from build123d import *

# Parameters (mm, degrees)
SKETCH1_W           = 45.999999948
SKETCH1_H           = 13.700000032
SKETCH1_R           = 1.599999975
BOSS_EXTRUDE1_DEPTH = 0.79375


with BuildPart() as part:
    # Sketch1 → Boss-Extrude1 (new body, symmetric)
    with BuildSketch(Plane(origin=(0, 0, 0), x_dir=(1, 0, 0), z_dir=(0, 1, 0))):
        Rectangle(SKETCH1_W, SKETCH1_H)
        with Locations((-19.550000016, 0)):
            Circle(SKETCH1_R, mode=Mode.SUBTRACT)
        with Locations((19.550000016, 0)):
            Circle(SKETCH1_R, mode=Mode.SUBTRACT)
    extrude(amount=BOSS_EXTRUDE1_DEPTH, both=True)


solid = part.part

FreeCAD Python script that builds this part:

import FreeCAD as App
import Part
import Sketcher

V = App.Vector
Q = App.Units.Quantity

doc = App.newDocument("Part")
body = doc.addObject("PartDesign::Body", "Body")

sketch1 = body.newObject("Sketcher::SketchObject", "Sketch")
sketch1.AttachmentSupport = (doc.getObject("XZ_Plane"), [""])
sketch1.MapMode = "FlatFace"
sketch1.addGeometry(Part.LineSegment(V(-23, -6.9, 0), V(-23, 6.9, 0)), False)
sketch1.addGeometry(Part.LineSegment(V(-23, 6.9, 0), V(23, 6.9, 0)), False)
sketch1.addGeometry(Part.LineSegment(V(23, 6.9, 0), V(23, -6.9, 0)), False)
sketch1.addGeometry(Part.LineSegment(V(23, -6.9, 0), V(-23, -6.9, 0)), False)
sketch1.addGeometry(Part.Circle(V(-19.6, 0, 0), V(0, 0, 1), 1.6), False)
sketch1.addGeometry(Part.Circle(V(19.6, 0, 0), V(0, 0, 1), 1.6), False)
sketch1.addConstraint(Sketcher.Constraint("Coincident", 0, 2, 1, 1))
sketch1.addConstraint(Sketcher.Constraint("Coincident", 1, 2, 2, 1))
sketch1.addConstraint(Sketcher.Constraint("Coincident", 2, 2, 3, 1))
sketch1.addConstraint(Sketcher.Constraint("Coincident", 3, 2, 0, 1))
sketch1.addConstraint(Sketcher.Constraint("Vertical", 0))
sketch1.addConstraint(Sketcher.Constraint("Horizontal", 1))
sketch1.addConstraint(Sketcher.Constraint("Vertical", 2))
sketch1.addConstraint(Sketcher.Constraint("Horizontal", 3))
sketch1.addConstraint(Sketcher.Constraint("Equal", 4, 5))
sketch1.addConstraint(Sketcher.Constraint("Symmetric", 4, 3, 5, 3, -1, 1))
sketch1.addConstraint(Sketcher.Constraint("Symmetric", 0, 2, 2, 2, -1, 1))
sketch1.addConstraint(Sketcher.Constraint("PointOnObject", 4, 3, -1))
sketch1.addConstraint(Sketcher.Constraint("Diameter", 4, Q("3.2 mm")))
sketch1.addConstraint(Sketcher.Constraint("DistanceX", 1, 1, 1, 2, Q("46 mm")))
sketch1.addConstraint(Sketcher.Constraint("DistanceY", 0, 1, 0, 2, Q("13.7 mm")))
sketch1.addConstraint(Sketcher.Constraint("DistanceX", 4, 3, 5, 3, Q("39.1 mm")))
pad1 = body.newObject("PartDesign::Pad", "Pad")
pad1.Profile = sketch1
pad1.Length = 1.5875
pad1.Midplane = True

doc.recompute()
